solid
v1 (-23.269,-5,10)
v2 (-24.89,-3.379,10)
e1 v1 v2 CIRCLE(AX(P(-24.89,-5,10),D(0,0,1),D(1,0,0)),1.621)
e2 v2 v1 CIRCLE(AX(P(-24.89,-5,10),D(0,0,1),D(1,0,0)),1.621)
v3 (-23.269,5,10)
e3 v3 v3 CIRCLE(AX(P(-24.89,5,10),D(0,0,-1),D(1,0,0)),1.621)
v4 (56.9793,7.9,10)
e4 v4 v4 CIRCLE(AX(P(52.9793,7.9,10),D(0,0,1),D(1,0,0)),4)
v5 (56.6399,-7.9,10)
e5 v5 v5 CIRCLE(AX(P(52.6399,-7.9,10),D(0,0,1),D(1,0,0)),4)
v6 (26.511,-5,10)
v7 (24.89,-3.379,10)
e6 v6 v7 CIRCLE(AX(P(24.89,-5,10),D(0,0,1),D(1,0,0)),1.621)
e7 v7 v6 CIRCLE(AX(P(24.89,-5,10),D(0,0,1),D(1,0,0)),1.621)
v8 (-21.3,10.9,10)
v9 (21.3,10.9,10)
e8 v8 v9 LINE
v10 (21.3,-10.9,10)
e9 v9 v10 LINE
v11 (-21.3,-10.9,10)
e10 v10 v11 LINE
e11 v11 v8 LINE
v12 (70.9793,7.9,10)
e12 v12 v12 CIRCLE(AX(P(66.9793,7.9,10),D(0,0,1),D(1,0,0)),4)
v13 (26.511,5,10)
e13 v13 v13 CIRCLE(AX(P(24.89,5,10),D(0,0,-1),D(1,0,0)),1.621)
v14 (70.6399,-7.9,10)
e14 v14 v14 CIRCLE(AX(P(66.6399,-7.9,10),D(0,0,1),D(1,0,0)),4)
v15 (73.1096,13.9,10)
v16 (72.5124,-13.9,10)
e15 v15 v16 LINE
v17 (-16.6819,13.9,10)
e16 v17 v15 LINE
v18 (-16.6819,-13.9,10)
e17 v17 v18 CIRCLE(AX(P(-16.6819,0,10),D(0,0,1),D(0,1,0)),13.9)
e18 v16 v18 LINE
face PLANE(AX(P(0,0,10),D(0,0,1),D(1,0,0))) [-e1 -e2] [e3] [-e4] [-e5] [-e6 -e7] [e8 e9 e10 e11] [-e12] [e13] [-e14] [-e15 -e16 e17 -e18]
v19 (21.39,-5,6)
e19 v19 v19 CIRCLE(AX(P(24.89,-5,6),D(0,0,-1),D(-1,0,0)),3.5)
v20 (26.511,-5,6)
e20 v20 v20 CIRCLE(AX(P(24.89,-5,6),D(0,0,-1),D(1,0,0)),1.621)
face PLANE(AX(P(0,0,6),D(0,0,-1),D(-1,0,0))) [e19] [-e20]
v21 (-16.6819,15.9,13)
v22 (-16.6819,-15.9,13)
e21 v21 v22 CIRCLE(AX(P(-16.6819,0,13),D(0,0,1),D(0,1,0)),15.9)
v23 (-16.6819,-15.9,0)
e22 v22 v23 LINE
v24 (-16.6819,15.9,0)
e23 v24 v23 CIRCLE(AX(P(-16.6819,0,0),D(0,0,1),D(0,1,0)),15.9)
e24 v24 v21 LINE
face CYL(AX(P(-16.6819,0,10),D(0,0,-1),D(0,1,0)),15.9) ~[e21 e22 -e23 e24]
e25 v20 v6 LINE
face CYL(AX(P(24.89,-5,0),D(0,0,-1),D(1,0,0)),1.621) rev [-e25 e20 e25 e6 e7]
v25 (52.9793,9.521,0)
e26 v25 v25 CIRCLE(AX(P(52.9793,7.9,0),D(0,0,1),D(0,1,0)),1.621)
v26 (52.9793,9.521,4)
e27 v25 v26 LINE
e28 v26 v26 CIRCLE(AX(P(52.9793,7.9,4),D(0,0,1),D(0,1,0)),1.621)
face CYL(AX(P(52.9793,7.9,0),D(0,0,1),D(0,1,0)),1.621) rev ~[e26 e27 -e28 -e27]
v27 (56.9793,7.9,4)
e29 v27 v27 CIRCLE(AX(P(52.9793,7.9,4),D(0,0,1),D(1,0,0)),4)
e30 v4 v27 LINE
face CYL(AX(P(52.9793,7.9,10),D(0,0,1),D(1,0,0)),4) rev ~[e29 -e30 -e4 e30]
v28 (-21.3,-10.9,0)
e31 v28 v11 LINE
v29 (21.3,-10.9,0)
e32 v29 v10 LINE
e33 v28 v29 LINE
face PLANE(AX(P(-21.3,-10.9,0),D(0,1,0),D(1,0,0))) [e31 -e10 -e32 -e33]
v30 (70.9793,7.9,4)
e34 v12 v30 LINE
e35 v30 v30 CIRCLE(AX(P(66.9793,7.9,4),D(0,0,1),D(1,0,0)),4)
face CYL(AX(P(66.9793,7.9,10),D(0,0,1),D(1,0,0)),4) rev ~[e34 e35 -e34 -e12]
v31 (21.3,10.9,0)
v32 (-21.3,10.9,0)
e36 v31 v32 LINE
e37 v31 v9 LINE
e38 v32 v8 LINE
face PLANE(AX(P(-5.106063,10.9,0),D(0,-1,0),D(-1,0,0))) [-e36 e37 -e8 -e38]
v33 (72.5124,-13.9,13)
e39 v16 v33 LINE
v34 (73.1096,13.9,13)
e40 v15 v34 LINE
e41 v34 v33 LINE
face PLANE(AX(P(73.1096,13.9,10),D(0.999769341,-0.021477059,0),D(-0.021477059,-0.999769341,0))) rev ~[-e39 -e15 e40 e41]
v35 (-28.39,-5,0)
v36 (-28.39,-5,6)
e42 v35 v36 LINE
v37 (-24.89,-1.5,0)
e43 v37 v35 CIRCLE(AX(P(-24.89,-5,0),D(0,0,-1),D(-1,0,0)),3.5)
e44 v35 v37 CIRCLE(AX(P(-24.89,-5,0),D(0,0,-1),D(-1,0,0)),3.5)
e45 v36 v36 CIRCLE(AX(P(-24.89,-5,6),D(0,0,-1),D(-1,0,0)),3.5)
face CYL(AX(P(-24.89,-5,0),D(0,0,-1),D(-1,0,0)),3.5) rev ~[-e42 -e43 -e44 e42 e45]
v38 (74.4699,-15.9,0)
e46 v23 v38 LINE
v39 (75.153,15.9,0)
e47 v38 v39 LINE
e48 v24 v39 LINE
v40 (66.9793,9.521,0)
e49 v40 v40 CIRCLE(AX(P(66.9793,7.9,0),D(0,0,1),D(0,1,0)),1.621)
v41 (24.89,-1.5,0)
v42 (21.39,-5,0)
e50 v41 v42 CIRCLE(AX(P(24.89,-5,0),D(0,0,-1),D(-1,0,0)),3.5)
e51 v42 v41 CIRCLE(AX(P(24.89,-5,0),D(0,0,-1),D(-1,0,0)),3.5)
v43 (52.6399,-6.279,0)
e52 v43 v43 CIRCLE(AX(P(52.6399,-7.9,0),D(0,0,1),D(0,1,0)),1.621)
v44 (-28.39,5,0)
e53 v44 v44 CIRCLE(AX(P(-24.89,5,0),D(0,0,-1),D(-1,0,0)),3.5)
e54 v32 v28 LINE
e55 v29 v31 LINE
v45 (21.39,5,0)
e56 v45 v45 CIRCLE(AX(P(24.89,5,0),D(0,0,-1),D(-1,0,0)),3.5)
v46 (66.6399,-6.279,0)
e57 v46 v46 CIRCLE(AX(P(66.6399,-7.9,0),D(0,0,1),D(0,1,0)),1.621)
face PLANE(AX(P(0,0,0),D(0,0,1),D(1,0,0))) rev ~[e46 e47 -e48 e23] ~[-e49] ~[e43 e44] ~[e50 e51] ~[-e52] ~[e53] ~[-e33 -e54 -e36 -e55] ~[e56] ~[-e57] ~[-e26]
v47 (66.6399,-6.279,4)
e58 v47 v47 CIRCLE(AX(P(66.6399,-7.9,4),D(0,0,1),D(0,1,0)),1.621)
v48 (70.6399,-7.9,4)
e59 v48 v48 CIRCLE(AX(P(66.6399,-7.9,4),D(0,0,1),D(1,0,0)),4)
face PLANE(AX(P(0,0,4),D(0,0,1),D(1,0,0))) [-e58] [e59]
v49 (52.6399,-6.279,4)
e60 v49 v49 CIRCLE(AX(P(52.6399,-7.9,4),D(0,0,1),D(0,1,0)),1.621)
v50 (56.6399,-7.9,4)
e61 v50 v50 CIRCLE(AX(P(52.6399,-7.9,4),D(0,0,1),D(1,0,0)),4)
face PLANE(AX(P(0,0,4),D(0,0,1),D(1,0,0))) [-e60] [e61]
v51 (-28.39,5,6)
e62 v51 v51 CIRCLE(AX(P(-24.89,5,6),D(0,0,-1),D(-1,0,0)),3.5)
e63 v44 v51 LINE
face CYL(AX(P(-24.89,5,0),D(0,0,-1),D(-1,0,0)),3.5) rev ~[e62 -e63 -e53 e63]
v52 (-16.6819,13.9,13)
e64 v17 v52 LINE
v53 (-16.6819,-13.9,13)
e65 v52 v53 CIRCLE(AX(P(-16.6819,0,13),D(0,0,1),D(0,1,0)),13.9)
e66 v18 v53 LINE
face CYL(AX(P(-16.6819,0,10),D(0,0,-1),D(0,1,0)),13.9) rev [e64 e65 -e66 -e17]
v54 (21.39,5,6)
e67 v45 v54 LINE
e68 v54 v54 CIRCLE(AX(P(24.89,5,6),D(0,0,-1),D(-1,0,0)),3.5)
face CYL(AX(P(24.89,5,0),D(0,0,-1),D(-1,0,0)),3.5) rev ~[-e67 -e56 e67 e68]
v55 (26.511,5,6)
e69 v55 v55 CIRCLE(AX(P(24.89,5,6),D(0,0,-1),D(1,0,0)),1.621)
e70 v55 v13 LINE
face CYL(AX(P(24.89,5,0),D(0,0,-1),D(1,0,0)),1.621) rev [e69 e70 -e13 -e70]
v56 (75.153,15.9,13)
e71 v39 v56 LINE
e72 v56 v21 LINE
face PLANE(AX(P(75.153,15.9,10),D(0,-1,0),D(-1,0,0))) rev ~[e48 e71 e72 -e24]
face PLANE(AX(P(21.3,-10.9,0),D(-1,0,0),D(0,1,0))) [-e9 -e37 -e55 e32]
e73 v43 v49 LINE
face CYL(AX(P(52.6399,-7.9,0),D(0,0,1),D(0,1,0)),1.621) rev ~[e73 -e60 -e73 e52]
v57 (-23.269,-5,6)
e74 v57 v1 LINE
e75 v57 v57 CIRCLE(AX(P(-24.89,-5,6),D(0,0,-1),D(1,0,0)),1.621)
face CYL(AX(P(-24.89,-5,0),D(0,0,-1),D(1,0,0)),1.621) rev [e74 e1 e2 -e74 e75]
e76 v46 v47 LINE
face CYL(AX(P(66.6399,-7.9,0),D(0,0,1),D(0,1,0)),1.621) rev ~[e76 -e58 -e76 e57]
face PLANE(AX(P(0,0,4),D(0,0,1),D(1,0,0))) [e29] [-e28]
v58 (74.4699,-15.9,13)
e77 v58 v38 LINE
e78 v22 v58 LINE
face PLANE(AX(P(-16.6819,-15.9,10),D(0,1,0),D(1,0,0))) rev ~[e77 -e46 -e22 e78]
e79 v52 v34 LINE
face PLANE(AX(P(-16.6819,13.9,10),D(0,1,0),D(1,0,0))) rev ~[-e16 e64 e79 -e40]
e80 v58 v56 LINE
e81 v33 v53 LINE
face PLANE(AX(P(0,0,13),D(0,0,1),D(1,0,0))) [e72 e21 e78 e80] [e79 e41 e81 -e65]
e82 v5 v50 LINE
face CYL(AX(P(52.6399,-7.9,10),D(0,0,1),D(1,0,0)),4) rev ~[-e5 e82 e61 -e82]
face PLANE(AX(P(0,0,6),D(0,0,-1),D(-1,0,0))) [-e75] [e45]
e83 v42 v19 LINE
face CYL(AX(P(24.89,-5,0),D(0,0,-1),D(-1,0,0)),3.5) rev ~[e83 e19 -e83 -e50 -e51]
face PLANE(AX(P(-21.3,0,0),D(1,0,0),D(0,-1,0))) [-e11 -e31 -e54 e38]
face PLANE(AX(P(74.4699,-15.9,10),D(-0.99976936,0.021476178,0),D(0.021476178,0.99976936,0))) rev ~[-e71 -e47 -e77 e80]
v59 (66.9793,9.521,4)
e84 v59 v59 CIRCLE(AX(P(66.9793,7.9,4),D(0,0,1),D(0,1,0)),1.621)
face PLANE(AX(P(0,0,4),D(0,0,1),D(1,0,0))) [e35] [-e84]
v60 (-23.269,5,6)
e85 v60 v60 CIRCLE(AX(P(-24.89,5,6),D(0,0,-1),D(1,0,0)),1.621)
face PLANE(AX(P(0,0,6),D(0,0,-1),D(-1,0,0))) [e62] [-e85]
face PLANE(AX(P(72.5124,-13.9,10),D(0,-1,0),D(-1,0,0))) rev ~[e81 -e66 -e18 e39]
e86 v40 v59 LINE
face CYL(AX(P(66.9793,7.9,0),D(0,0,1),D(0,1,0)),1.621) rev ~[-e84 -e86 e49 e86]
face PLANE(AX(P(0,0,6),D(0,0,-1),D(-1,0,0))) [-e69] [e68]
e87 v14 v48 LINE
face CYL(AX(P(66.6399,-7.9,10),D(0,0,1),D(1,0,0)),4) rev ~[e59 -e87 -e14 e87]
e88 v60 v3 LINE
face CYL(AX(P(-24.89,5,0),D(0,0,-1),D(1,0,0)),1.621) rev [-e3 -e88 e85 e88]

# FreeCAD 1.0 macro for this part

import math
import FreeCAD as App
import Part
import Sketcher

V = App.Vector
Q = App.Units.Quantity

doc = App.newDocument("Part")
body = doc.addObject("PartDesign::Body", "Body")

# Sketch on XY plane
sketch1 = doc.addObject("Sketcher::SketchObject", "Sketch")
body.addObject(sketch1)
sketch1.AttachmentSupport = (doc.XY_Plane, [""])
sketch1.MapMode = "FlatFace"
sketch1.addGeometry(Part.LineSegment(V(-16.7, -15.9, 0), V(74.5, -15.9, 0)), False)
sketch1.addGeometry(Part.LineSegment(V(74.5, -15.9, 0), V(75.2, 15.9, 0)), False)
sketch1.addGeometry(Part.LineSegment(V(75.2, 15.9, 0), V(-16.7, 15.9, 0)), False)
sketch1.addGeometry(Part.ArcOfCircle(Part.Circle(V(-16.7, 0, 0), V(0, 0, 1), 15.9), math.radians(90), math.radians(270)), False)
sketch1.addGeometry(Part.Circle(V(-24.9, 5, 0), V(0, 0, 1), 1.6), False)
sketch1.addGeometry(Part.LineSegment(V(-21.3, -10.9, 0), V(-21.3, 10.9, 0)), False)
sketch1.addGeometry(Part.LineSegment(V(-21.3, 10.9, 0), V(21.3, 10.9, 0)), False)
sketch1.addGeometry(Part.LineSegment(V(21.3, 10.9, 0), V(21.3, -10.9, 0)), False)
sketch1.addGeometry(Part.LineSegment(V(21.3, -10.9, 0), V(-21.3, -10.9, 0)), False)
sketch1.addGeometry(Part.Circle(V(-24.9, -5, 0), V(0, 0, 1), 1.6), False)
sketch1.addGeometry(Part.Circle(V(24.9, 5, 0), V(0, 0, 1), 1.6), False)
sketch1.addGeometry(Part.Circle(V(24.9, -5, 0), V(0, 0, 1), 1.6), False)
sketch1.addConstraint(Sketcher.Constraint("Coincident", 0, 2, 1, 1))
sketch1.addConstraint(Sketcher.Constraint("Coincident", 1, 2, 2, 1))
sketch1.addConstraint(Sketcher.Constraint("Tangent", 2, 2, 3, 1))
sketch1.addConstraint(Sketcher.Constraint("Tangent", 3, 2, 0, 1))
sketch1.addConstraint(Sketcher.Constraint("Coincident", 5, 2, 6, 1))
sketch1.addConstraint(Sketcher.Constraint("Coincident", 6, 2, 7, 1))
sketch1.addConstraint(Sketcher.Constraint("Coincident", 7, 2, 8, 1))
sketch1.addConstraint(Sketcher.Constraint("Coincident", 8, 2, 5, 1))
sketch1.addConstraint(Sketcher.Constraint("Horizontal", 0))
sketch1.addConstraint(Sketcher.Constraint("Horizontal", 2))
sketch1.addConstraint(Sketcher.Constraint("Vertical", 5))
sketch1.addConstraint(Sketcher.Constraint("Horizontal", 6))
sketch1.addConstraint(Sketcher.Constraint("Vertical", 7))
sketch1.addConstraint(Sketcher.Constraint("Horizontal", 8))
sketch1.addConstraint(Sketcher.Constraint("Equal", 4, 9))
sketch1.addConstraint(Sketcher.Constraint("Equal", 9, 10))
sketch1.addConstraint(Sketcher.Constraint("Equal", 10, 11))
sketch1.addConstraint(Sketcher.Constraint("Symmetric", 9, 3, 10, 3, -1, 1))
sketch1.addConstraint(Sketcher.Constraint("Symmetric", 4, 3, 11, 3, -1, 1))
sketch1.addConstraint(Sketcher.Constraint("Symmetric", 5, 2, 7, 2, -1, 1))
sketch1.addConstraint(Sketcher.Constraint("Symmetric", 4, 3, 10, 3, -2))
sketch1.addConstraint(Sketcher.Constraint("PointOnObject", 3, 3, -1))
sketch1.addConstraint(Sketcher.Constraint("Diameter", 4, 3.242))
sketch1.addConstraint(Sketcher.Constraint("DistanceX", 6, 1, 6, 2, 42.6))
sketch1.addConstraint(Sketcher.Constraint("DistanceY", -1, 1, 4, 3, 5.0))
sketch1.addConstraint(Sketcher.Constraint("DistanceY", 5, 2, 2, 2, 5.0))
sketch1.addConstraint(Sketcher.Constraint("DistanceY", -1, 1, 5, 2, 10.9))
sketch1.addConstraint(Sketcher.Constraint("DistanceX", 4, 3, -1, 1, 24.89))
sketch1.addConstraint(Sketcher.Constraint("Angle", 1, Q("88.7694 deg")))
sketch1.addConstraint(Sketcher.Constraint("DistanceX", 2, 2, 2, 1, 91.835))
sketch1.addConstraint(Sketcher.Constraint("DistanceX", -1, 1, 0, 2, 74.47))
pad1 = doc.addObject("PartDesign::Pad", "Pad")
body.addObject(pad1)
pad1.Profile = sketch1
pad1.Length = 10

# Sketch on XY plane
sketch2 = doc.addObject("Sketcher::SketchObject", "Sketch001")
body.addObject(sketch2)
sketch2.AttachmentSupport = (doc.XY_Plane, [""])
sketch2.MapMode = "FlatFace"
sketch2.AttachmentOffset = App.Placement(V(0, 0, 10), App.Rotation())
sketch2.addGeometry(Part.LineSegment(V(74, -16, 0), V(75, 16, 0)), False)
sketch2.addGeometry(Part.LineSegment(V(75, 16, 0), V(-17, 16, 0)), False)
sketch2.addGeometry(Part.ArcOfCircle(Part.Circle(V(-17, 0, 0), V(0, 0, 1), 16), math.radians(90), math.radians(270)), False)
sketch2.addGeometry(Part.LineSegment(V(-17, -16, 0), V(74, -16, 0)), False)
sketch2.addGeometry(Part.ArcOfCircle(Part.Circle(V(-17, 0, 0), V(0, 0, 1), 14), math.radians(90), math.radians(270)), False)
sketch2.addGeometry(Part.LineSegment(V(-17, 14, 0), V(73, 14, 0)), False)
sketch2.addGeometry(Part.LineSegment(V(73, 14, 0), V(73, -14, 0)), False)
sketch2.addGeometry(Part.LineSegment(V(73, -14, 0), V(-17, -14, 0)), False)
sketch2.addConstraint(Sketcher.Constraint("Coincident", 0, 2, 1, 1))
sketch2.addConstraint(Sketcher.Constraint("Tangent", 1, 2, 2, 1))
sketch2.addConstraint(Sketcher.Constraint("Tangent", 2, 2, 3, 1))
sketch2.addConstraint(Sketcher.Constraint("Coincident", 3, 2, 0, 1))
sketch2.addConstraint(Sketcher.Constraint("Tangent", 4, 1, 5, 1))
sketch2.addConstraint(Sketcher.Constraint("Coincident", 5, 2, 6, 1))
sketch2.addConstraint(Sketcher.Constraint("Coincident", 6, 2, 7, 1))
sketch2.addConstraint(Sketcher.Constraint("Tangent", 7, 2, 4, 2))
sketch2.addConstraint(Sketcher.Constraint("Horizontal", 1))
sketch2.addConstraint(Sketcher.Constraint("Horizontal", 3))
sketch2.addConstraint(Sketcher.Constraint("Horizontal", 5))
sketch2.addConstraint(Sketcher.Constraint("Horizontal", 7))
sketch2.addConstraint(Sketcher.Constraint("Coincident", 4, 3, 2, 3))
sketch2.addConstraint(Sketcher.Constraint("PointOnObject", 2, 3, -1))
sketch2.addConstraint(Sketcher.Constraint("Parallel", 0, 6))
sketch2.addConstraint(Sketcher.Constraint("DistanceY", 4, 1, 1, 2, 2.0))
sketch2.addConstraint(Sketcher.Constraint("Radius", 2, 15.9))
sketch2.addConstraint(Sketcher.Constraint("Angle", 0, Q("88.7694 deg")))
sketch2.addConstraint(Sketcher.Constraint("DistanceX", 1, 2, 1, 1, 91.835))
sketch2.addConstraint(Sketcher.Constraint("DistanceX", -1, 1, 3, 2, 74.47))
sketch2.addConstraint(Sketcher.Constraint("DistanceX", 5, 1, 5, 2, 89.7915))
pad2 = doc.addObject("PartDesign::Pad", "Pad001")
body.addObject(pad2)
pad2.Profile = sketch2
pad2.Length = 3

# Sketch on XY plane
sketch3 = doc.addObject("Sketcher::SketchObject", "Sketch002")
body.addObject(sketch3)
sketch3.AttachmentSupport = (doc.XY_Plane, [""])
sketch3.MapMode = "FlatFace"
sketch3.addGeometry(Part.Circle(V(67, 7.9, 0), V(0, 0, 1), 1.6), False)
sketch3.addGeometry(Part.Circle(V(66.6, -7.9, 0), V(0, 0, 1), 1.6), False)
sketch3.addGeometry(Part.Circle(V(53, 7.9, 0), V(0, 0, 1), 1.6), False)
sketch3.addGeometry(Part.Circle(V(52.6, -7.9, 0), V(0, 0, 1), 1.6), False)
sketch3.addConstraint(Sketcher.Constraint("Equal", 0, 1))
sketch3.addConstraint(Sketcher.Constraint("Equal", 1, 2))
sketch3.addConstraint(Sketcher.Constraint("Equal", 2, 3))
sketch3.addConstraint(Sketcher.Constraint("Horizontal", 0, 3, 2, 3))
sketch3.addConstraint(Sketcher.Constraint("Horizontal", 1, 3, 3, 3))
sketch3.addConstraint(Sketcher.Constraint("Diameter", 0, 3.242))
sketch3.addConstraint(Sketcher.Constraint("DistanceX", 2, 3, 0, 3, 14.0))
sketch3.addConstraint(Sketcher.Constraint("DistanceX", 3, 3, 1, 3, 14.0))
sketch3.addConstraint(Sketcher.Constraint("DistanceY", -1, 1, 0, 3, 7.9))
sketch3.addConstraint(Sketcher.Constraint("DistanceY", 1, 3, -1, 1, 7.9))
sketch3.addConstraint(Sketcher.Constraint("DistanceX", -1, 1, 1, 3, 66.64))
sketch3.addConstraint(Sketcher.Constraint("DistanceX", -1, 1, 0, 3, 66.9793))
doc.recompute()
hole = doc.addObject("PartDesign::Hole", "Hole")
body.addObject(hole)
hole.Profile = sketch3
hole.ThreadType = "None"
hole.Diameter = 3.242
hole.DepthType = "ThroughAll"
hole.Reversed = True

# Sketch on XY plane
sketch4 = doc.addObject("Sketcher::SketchObject", "Sketch003")
body.addObject(sketch4)
sketch4.AttachmentSupport = (doc.XY_Plane, [""])
sketch4.MapMode = "FlatFace"
sketch4.AttachmentOffset = App.Placement(V(0, 0, 10), App.Rotation())
sketch4.addGeometry(Part.Circle(V(52.6, -7.9, 0), V(0, 0, 1), 4), False)
sketch4.addGeometry(Part.Circle(V(53, 7.9, 0), V(0, 0, 1), 4), False)
sketch4.addGeometry(Part.Circle(V(53, 7.9, 0), V(0, 0, 1), 1.6), False)
sketch4.addGeometry(Part.Circle(V(66.6, -7.9, 0), V(0, 0, 1), 4), False)
sketch4.addGeometry(Part.Circle(V(66.6, -7.9, 0), V(0, 0, 1), 1.6), False)
sketch4.addGeometry(Part.Circle(V(67, 7.9, 0), V(0, 0, 1), 4), False)
sketch4.addGeometry(Part.Circle(V(67, 7.9, 0), V(0, 0, 1), 1.6), False)
sketch4.addConstraint(Sketcher.Constraint("Coincident", 2, 3, 1, 3))
sketch4.addConstraint(Sketcher.Constraint("Coincident", 4, 3, 3, 3))
sketch4.addConstraint(Sketcher.Constraint("Coincident", 6, 3, 5, 3))
sketch4.addConstraint(Sketcher.Constraint("Equal", 0, 1))
sketch4.addConstraint(Sketcher.Constraint("Equal", 1, 3))
sketch4.addConstraint(Sketcher.Constraint("Equal", 2, 4))
sketch4.addConstraint(Sketcher.Constraint("Equal", 3, 5))
sketch4.addConstraint(Sketcher.Constraint("Equal", 4, 6))
sketch4.addConstraint(Sketcher.Constraint("Horizontal", 0, 3, 3, 3))
sketch4.addConstraint(Sketcher.Constraint("Horizontal", 2, 3, 5, 3))
sketch4.addConstraint(Sketcher.Constraint("Diameter", 0, 8.0))
sketch4.addConstraint(Sketcher.Constraint("Diameter", 2, 3.242))
sketch4.addConstraint(Sketcher.Constraint("DistanceX", 0, 3, 3, 3, 14.0))
sketch4.addConstraint(Sketcher.Constraint("DistanceX", 1, 3, 5, 3, 14.0))
sketch4.addConstraint(Sketcher.Constraint("DistanceY", 0, 3, -1, 1, 7.9))
sketch4.addConstraint(Sketcher.Constraint("DistanceY", -1, 1, 1, 3, 7.9))
sketch4.addConstraint(Sketcher.Constraint("DistanceX", -1, 1, 0, 3, 52.64))
sketch4.addConstraint(Sketcher.Constraint("DistanceX", -1, 1, 1, 3, 52.9793))
pocket1 = doc.addObject("PartDesign::Pocket", "Pocket")
body.addObject(pocket1)
pocket1.Profile = sketch4
pocket1.Length = 6

# Sketch on XY plane
sketch5 = doc.addObject("Sketcher::SketchObject", "Sketch004")
body.addObject(sketch5)
sketch5.AttachmentSupport = (doc.XY_Plane, [""])
sketch5.MapMode = "FlatFace"
sketch5.addGeometry(Part.Circle(V(24.9, 5, 0), V(0, 0, 1), 3.5), False)
sketch5.addGeometry(Part.Circle(V(24.9, -5, 0), V(0, 0, 1), 3.5), False)
sketch5.addGeometry(Part.Circle(V(-24.9, -5, 0), V(0, 0, 1), 3.5), False)
sketch5.addGeometry(Part.Circle(V(-24.9, 5, 0), V(0, 0, 1), 3.5), False)
sketch5.addConstraint(Sketcher.Constraint("Equal", 0, 1))
sketch5.addConstraint(Sketcher.Constraint("Equal", 1, 2))
sketch5.addConstraint(Sketcher.Constraint("Equal", 2, 3))
sketch5.addConstraint(Sketcher.Constraint("Symmetric", 0, 3, 2, 3, -1, 1))
sketch5.addConstraint(Sketcher.Constraint("Symmetric", 1, 3, 3, 3, -1, 1))
sketch5.addConstraint(Sketcher.Constraint("Symmetric", 1, 3, 2, 3, -2))
sketch5.addConstraint(Sketcher.Constraint("Diameter", 0, 7.0))
sketch5.addConstraint(Sketcher.Constraint("DistanceY", -1, 1, 0, 3, 5.0))
sketch5.addConstraint(Sketcher.Constraint("DistanceX", -1, 1, 0, 3, 24.89))
pocket2 = doc.addObject("PartDesign::Pocket", "Pocket001")
body.addObject(pocket2)
pocket2.Profile = sketch5
pocket2.Length = 6
pocket2.Reversed = True

doc.recompute()
